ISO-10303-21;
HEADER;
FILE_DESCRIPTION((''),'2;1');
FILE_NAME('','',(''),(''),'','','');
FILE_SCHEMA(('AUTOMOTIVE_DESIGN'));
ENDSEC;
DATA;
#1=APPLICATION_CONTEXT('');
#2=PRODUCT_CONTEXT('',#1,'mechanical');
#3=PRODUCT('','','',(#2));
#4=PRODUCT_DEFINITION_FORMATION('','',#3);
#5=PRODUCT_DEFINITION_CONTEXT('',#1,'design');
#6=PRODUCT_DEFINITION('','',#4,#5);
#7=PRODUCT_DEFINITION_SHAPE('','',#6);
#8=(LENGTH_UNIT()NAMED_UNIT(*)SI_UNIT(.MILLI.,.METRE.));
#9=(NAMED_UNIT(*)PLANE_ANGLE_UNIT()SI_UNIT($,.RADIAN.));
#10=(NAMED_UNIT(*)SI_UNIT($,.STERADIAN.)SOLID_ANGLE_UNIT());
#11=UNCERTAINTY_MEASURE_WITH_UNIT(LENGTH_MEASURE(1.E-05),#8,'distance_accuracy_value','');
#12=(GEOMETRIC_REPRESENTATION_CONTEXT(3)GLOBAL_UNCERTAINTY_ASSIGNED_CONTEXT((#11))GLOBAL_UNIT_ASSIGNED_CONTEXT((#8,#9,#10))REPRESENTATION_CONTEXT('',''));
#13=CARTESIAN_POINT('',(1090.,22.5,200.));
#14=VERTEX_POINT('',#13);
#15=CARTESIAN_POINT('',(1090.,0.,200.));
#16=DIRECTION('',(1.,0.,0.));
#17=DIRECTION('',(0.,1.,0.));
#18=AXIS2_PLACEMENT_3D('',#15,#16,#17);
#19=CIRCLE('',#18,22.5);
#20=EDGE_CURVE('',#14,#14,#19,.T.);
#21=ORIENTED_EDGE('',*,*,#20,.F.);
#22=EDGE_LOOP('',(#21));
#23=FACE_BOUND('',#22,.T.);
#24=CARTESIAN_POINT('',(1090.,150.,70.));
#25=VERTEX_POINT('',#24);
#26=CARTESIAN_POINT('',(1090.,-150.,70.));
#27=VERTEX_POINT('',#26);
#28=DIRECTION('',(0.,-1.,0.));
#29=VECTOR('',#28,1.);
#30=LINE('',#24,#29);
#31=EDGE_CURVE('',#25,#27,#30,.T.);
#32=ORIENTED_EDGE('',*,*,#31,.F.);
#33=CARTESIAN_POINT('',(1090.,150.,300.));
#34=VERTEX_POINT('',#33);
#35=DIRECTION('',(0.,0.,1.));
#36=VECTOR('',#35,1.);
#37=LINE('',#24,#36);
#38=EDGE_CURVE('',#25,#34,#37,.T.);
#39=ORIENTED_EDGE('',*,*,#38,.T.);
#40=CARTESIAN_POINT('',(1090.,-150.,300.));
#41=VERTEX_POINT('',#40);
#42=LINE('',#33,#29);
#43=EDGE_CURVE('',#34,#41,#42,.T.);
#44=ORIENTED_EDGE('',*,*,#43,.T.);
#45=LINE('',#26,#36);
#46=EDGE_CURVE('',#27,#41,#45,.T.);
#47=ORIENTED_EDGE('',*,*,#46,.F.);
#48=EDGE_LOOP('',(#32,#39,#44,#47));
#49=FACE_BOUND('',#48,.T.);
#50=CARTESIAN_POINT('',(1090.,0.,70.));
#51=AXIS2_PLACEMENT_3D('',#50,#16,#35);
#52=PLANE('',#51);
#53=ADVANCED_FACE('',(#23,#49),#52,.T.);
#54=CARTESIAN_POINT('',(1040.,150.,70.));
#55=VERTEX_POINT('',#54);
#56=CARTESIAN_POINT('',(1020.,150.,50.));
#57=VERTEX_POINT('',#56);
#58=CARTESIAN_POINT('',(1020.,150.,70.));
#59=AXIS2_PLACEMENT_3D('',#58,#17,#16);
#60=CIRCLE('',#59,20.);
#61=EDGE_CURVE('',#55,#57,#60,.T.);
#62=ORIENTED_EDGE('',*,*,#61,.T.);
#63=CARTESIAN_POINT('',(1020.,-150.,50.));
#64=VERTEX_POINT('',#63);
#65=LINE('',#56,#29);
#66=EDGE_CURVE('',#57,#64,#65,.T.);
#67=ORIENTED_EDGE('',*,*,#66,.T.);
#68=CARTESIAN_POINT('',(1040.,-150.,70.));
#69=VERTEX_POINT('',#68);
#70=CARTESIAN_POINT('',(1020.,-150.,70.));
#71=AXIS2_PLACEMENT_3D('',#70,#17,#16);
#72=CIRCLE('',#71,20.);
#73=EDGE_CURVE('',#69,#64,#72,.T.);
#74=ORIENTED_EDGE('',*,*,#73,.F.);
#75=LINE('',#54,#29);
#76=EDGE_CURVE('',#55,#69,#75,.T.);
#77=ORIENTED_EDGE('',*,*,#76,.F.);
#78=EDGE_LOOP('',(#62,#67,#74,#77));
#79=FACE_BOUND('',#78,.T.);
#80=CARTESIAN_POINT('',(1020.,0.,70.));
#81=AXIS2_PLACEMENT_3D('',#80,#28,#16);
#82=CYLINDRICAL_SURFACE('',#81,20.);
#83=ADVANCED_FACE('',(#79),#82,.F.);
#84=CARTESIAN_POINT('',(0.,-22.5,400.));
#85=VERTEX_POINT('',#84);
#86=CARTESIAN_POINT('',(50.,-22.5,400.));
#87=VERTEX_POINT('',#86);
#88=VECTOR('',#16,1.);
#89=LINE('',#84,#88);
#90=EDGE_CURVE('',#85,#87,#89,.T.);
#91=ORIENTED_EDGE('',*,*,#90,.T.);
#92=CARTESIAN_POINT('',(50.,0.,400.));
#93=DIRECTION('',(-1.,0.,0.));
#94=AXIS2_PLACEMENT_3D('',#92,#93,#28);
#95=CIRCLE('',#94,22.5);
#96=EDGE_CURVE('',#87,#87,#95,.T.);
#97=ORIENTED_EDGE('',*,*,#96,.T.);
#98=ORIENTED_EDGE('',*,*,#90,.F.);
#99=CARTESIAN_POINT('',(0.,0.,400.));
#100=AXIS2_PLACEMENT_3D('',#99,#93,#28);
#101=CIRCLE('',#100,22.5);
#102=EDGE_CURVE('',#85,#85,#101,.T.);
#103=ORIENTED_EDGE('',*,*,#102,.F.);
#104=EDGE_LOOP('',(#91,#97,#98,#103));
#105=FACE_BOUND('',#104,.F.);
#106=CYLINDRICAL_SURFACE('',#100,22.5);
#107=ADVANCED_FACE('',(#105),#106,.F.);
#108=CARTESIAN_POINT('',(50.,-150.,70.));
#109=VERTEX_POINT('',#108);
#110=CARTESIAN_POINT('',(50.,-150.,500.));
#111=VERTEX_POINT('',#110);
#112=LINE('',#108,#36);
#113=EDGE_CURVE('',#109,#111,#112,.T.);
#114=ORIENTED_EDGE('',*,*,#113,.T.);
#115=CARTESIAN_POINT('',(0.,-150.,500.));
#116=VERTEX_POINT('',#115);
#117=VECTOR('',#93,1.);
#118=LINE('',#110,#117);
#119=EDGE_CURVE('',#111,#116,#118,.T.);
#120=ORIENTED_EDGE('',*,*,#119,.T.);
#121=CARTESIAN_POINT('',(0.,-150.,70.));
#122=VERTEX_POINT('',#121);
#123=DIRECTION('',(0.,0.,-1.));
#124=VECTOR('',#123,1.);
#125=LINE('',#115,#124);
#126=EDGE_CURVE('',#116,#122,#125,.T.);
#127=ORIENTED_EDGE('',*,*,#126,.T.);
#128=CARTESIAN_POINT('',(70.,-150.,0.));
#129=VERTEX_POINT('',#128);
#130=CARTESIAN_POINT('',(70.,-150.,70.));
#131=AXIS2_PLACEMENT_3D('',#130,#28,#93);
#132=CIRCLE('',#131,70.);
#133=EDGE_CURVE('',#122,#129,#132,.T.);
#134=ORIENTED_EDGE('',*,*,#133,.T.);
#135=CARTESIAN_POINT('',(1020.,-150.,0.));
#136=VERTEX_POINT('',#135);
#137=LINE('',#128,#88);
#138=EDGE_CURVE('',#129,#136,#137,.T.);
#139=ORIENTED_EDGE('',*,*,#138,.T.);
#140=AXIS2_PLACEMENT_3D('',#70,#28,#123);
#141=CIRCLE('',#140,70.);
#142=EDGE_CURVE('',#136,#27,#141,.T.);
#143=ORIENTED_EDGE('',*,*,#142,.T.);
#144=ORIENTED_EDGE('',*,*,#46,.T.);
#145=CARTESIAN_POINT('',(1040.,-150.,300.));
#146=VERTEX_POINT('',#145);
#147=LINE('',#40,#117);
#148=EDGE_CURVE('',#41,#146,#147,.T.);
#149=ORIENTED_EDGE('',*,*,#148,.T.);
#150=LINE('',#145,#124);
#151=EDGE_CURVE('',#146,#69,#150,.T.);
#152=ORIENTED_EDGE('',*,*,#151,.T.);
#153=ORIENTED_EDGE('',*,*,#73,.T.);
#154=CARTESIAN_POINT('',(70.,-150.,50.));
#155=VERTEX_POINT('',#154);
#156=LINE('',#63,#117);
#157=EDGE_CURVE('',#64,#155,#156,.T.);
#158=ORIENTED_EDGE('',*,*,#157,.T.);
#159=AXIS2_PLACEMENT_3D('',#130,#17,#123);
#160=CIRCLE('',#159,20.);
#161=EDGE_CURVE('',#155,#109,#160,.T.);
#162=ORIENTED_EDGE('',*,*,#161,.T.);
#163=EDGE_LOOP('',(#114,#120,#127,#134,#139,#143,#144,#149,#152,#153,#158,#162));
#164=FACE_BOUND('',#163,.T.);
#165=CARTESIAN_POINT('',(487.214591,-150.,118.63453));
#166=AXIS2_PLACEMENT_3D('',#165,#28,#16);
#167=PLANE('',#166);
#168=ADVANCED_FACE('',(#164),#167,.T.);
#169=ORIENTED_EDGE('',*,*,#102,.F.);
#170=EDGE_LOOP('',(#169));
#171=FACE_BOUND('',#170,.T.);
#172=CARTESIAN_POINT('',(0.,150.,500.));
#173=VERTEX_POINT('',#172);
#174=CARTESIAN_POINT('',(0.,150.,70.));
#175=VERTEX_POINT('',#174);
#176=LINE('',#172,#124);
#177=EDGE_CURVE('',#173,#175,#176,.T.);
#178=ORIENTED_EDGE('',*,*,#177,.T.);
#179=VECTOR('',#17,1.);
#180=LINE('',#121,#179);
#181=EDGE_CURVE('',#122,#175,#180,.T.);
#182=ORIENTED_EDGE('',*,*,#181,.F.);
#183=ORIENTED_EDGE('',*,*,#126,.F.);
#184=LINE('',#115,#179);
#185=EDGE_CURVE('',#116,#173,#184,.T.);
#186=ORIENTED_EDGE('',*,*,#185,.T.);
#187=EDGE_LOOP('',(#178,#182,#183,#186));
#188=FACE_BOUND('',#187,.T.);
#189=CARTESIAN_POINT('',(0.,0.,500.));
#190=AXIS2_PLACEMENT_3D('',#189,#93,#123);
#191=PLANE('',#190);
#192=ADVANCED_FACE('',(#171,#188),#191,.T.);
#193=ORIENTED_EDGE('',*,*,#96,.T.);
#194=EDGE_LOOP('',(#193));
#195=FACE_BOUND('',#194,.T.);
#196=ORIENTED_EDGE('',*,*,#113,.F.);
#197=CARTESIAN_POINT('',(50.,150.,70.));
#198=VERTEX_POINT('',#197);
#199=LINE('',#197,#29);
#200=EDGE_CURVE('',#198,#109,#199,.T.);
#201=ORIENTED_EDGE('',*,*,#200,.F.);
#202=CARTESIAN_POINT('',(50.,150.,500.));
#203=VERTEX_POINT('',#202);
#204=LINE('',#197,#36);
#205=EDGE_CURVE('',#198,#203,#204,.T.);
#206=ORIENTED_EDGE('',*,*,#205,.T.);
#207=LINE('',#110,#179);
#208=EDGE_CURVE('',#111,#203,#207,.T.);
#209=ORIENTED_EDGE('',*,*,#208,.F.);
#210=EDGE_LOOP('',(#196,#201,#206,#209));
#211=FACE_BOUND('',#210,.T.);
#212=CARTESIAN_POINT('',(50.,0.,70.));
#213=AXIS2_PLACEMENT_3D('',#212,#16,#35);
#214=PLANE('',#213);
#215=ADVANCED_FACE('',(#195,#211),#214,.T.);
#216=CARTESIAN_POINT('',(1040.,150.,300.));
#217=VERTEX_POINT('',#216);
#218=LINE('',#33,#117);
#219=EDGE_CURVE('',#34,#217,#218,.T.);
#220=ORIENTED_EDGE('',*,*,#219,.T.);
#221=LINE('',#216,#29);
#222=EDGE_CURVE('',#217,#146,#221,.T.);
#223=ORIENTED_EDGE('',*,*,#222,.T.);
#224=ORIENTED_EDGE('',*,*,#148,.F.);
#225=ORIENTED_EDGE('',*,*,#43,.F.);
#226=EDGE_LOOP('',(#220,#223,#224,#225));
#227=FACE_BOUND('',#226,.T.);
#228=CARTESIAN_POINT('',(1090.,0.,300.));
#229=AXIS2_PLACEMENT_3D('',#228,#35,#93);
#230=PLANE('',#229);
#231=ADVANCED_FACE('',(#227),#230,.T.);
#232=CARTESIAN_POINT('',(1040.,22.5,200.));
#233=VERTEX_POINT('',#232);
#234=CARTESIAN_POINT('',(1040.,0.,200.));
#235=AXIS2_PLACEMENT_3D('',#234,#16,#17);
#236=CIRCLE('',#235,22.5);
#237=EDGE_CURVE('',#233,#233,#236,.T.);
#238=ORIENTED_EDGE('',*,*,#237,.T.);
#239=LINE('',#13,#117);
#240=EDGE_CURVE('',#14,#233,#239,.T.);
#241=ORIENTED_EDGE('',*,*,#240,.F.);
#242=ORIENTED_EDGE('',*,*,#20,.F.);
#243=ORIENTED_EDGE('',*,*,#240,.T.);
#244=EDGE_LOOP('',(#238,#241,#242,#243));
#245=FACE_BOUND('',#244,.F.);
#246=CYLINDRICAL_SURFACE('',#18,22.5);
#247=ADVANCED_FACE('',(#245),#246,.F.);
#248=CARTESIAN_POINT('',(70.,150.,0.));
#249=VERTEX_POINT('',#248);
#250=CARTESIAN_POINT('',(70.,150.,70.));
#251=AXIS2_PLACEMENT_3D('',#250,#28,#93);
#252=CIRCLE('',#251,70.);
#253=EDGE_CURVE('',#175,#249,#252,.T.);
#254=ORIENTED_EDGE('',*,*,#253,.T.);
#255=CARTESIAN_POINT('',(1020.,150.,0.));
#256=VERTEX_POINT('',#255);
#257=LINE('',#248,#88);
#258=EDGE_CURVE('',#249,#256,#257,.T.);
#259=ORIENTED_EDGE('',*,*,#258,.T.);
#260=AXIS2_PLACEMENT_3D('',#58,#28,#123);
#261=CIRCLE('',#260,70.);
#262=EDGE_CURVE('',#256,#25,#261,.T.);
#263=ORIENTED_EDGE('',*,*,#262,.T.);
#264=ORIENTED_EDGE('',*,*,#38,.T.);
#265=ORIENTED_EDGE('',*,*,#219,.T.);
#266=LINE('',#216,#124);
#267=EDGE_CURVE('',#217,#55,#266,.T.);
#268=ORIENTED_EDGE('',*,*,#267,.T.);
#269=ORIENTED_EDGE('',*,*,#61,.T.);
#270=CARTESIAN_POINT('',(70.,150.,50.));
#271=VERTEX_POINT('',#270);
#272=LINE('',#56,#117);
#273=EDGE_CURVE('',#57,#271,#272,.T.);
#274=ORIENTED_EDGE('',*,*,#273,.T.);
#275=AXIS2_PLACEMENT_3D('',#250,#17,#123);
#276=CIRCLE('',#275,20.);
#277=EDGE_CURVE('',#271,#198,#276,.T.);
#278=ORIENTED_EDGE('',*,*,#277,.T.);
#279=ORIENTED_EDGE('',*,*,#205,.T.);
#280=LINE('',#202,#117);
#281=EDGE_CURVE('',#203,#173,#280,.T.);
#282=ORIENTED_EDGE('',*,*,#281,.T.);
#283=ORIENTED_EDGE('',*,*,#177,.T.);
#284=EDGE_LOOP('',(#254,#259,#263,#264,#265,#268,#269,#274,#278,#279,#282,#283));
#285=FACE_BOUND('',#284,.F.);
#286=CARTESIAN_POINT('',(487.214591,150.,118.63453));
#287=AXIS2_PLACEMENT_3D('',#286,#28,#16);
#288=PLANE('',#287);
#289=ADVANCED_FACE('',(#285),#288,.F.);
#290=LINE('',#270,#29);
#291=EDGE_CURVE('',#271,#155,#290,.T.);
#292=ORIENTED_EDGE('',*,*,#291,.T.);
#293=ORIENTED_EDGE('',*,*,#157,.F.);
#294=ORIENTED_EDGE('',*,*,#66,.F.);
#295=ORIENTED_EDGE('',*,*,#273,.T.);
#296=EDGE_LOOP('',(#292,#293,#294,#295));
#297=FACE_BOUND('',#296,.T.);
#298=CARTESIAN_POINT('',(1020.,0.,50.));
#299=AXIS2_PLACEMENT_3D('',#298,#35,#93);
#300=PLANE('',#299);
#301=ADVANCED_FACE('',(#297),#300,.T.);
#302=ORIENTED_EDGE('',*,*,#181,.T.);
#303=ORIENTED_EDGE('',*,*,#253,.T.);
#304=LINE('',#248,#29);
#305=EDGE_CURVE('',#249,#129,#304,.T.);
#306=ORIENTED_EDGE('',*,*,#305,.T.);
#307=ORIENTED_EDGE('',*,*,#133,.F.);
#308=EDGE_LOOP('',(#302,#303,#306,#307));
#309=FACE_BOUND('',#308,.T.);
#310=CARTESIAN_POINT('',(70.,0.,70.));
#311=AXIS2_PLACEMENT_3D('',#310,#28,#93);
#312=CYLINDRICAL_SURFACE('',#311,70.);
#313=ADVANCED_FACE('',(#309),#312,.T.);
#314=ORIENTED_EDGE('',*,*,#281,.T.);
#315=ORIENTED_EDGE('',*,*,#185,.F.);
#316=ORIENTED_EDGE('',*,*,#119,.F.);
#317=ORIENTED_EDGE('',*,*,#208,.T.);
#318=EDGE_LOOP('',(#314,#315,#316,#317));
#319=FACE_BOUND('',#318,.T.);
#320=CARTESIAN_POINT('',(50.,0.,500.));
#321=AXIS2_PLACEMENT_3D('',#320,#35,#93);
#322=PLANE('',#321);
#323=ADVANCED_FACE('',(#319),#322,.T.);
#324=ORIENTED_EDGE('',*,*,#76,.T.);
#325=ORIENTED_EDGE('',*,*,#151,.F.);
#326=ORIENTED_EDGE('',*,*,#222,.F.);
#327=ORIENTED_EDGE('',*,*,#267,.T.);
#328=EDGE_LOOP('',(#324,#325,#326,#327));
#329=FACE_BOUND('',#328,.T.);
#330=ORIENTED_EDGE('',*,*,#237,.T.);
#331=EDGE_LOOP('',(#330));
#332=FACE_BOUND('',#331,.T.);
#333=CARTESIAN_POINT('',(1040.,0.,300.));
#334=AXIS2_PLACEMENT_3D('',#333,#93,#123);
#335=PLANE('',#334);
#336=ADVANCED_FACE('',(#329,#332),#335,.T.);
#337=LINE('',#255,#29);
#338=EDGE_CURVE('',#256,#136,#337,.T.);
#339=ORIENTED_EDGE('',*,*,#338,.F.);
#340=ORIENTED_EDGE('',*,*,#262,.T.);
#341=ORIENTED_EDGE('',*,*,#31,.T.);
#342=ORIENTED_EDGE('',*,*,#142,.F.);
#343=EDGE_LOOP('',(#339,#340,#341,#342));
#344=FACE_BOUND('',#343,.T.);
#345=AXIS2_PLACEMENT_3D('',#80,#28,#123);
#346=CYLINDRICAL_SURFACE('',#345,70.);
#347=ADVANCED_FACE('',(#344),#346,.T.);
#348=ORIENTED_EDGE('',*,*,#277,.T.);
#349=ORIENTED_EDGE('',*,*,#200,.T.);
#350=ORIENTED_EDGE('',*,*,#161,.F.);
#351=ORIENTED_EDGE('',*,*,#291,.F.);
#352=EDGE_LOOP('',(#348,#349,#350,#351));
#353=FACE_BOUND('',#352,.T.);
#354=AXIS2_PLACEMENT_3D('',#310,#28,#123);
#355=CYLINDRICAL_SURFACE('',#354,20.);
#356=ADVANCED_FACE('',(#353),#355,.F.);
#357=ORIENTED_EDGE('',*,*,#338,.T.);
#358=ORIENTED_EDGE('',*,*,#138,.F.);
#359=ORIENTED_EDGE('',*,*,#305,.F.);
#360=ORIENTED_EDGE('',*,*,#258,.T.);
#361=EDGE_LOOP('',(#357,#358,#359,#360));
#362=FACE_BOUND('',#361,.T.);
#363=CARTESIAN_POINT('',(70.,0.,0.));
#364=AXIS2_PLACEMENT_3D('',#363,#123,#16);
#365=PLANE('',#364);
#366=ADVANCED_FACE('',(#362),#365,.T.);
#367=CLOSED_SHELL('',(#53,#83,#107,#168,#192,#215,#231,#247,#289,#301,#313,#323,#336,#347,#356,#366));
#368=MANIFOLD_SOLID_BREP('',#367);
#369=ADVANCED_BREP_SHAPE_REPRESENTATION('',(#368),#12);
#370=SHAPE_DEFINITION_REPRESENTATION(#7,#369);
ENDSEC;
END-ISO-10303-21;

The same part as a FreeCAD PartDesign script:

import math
import FreeCAD as App
import Part
import Sketcher

V = App.Vector
Q = App.Units.Quantity

doc = App.newDocument("Part")
body = doc.addObject("PartDesign::Body", "Body")

sketch1 = doc.addObject("Sketcher::SketchObject", "Sketch")
body.addObject(sketch1)
sketch1.AttachmentSupport = (doc.XZ_Plane, [""])
sketch1.MapMode = "FlatFace"
sketch1.addGeometry([
    Part.ArcOfCircle(Part.Circle(V(70, 70, 0), V(0, 0, 1), 70), math.radians(180), math.radians(270)),
    Part.LineSegment(V(70, 0, 0), V(1020, 0, 0)),
    Part.ArcOfCircle(Part.Circle(V(1020, 70, 0), V(0, 0, 1), 70), math.radians(-90), math.radians(0)),
    Part.LineSegment(V(1090, 70, 0), V(1090, 300, 0)),
    Part.LineSegment(V(1090, 300, 0), V(1040, 300, 0)),
    Part.LineSegment(V(1040, 300, 0), V(1040, 70, 0)),
    Part.ArcOfCircle(Part.Circle(V(1020, 70, 0), V(0, 0, 1), 20), math.radians(-90), math.radians(0)),
    Part.LineSegment(V(1020, 50, 0), V(70, 50, 0)),
    Part.ArcOfCircle(Part.Circle(V(70, 70, 0), V(0, 0, 1), 20), math.radians(180), math.radians(270)),
    Part.LineSegment(V(50, 70, 0), V(50, 500, 0)),
    Part.LineSegment(V(50, 500, 0), V(0, 500, 0)),
    Part.LineSegment(V(0, 500, 0), V(0, 70, 0)),
], False)
sketch1.addConstraint([
    Sketcher.Constraint("Tangent", 0, 2, 1, 1),
    Sketcher.Constraint("Tangent", 1, 2, 2, 1),
    Sketcher.Constraint("Tangent", 2, 2, 3, 1),
    Sketcher.Constraint("Coincident", 3, 2, 4, 1),
    Sketcher.Constraint("Coincident", 4, 2, 5, 1),
    Sketcher.Constraint("Tangent", 5, 2, 6, 2),
    Sketcher.Constraint("Tangent", 6, 1, 7, 1),
    Sketcher.Constraint("Tangent", 7, 2, 8, 2),
    Sketcher.Constraint("Tangent", 8, 1, 9, 1),
    Sketcher.Constraint("Coincident", 9, 2, 10, 1),
    Sketcher.Constraint("Coincident", 10, 2, 11, 1),
    Sketcher.Constraint("Tangent", 11, 2, 0, 1),
    Sketcher.Constraint("Horizontal", 1),
    Sketcher.Constraint("Vertical", 3),
    Sketcher.Constraint("Horizontal", 4),
    Sketcher.Constraint("Vertical", 5),
    Sketcher.Constraint("Horizontal", 7),
    Sketcher.Constraint("Vertical", 9),
    Sketcher.Constraint("Horizontal", 10),
    Sketcher.Constraint("Vertical", 11),
    Sketcher.Constraint("Coincident", 6, 3, 2, 3),
    Sketcher.Constraint("Coincident", 8, 3, 0, 3),
    Sketcher.Constraint("Equal", 0, 2),
    Sketcher.Constraint("PointOnObject", 0, 2, -1),
    Sketcher.Constraint("PointOnObject", 10, 2, -2),
    Sketcher.Constraint("Radius", 0, Q("70 mm")),
    Sketcher.Constraint("Radius", 6, Q("20 mm")),
    Sketcher.Constraint("DistanceX", 1, 1, 1, 2, Q("950 mm")),
    Sketcher.Constraint("DistanceY", 3, 1, 3, 2, Q("230 mm")),
    Sketcher.Constraint("DistanceY", 9, 1, 9, 2, Q("430 mm")),
])
pad1 = doc.addObject("PartDesign::Pad", "Pad")
body.addObject(pad1)
pad1.Profile = sketch1
pad1.Length = 300
pad1.Midplane = True

sketch2 = doc.addObject("Sketcher::SketchObject", "Sketch001")
body.addObject(sketch2)
sketch2.AttachmentSupport = (doc.YZ_Plane, [""])
sketch2.MapMode = "FlatFace"
sketch2.AttachmentOffset = App.Placement(V(0, 0, 1090), App.Rotation())
sketch2.addGeometry(Part.Circle(V(0, 200, 0), V(0, 0, 1), 22), False)
sketch2.addConstraint([
    Sketcher.Constraint("PointOnObject", 0, 3, -2),
    Sketcher.Constraint("Diameter", 0, Q("45 mm")),
    Sketcher.Constraint("DistanceY", -1, 1, 0, 3, Q("200 mm")),
])
pocket1 = doc.addObject("PartDesign::Pocket", "Pocket")
body.addObject(pocket1)
pocket1.Profile = sketch2
pocket1.Length = 50

sketch3 = doc.addObject("Sketcher::SketchObject", "Sketch002")
body.addObject(sketch3)
sketch3.AttachmentSupport = (doc.YZ_Plane, [""])
sketch3.MapMode = "FlatFace"
sketch3.addGeometry(Part.Circle(V(0, 400, 0), V(0, 0, 1), 22), False)
sketch3.addConstraint([
    Sketcher.Constraint("PointOnObject", 0, 3, -2),
    Sketcher.Constraint("Diameter", 0, Q("45 mm")),
    Sketcher.Constraint("DistanceY", -1, 1, 0, 3, Q("400 mm")),
])
pocket2 = doc.addObject("PartDesign::Pocket", "Pocket001")
body.addObject(pocket2)
pocket2.Profile = sketch3
pocket2.Type = "ThroughAll"
pocket2.Reversed = True

doc.recompute()
